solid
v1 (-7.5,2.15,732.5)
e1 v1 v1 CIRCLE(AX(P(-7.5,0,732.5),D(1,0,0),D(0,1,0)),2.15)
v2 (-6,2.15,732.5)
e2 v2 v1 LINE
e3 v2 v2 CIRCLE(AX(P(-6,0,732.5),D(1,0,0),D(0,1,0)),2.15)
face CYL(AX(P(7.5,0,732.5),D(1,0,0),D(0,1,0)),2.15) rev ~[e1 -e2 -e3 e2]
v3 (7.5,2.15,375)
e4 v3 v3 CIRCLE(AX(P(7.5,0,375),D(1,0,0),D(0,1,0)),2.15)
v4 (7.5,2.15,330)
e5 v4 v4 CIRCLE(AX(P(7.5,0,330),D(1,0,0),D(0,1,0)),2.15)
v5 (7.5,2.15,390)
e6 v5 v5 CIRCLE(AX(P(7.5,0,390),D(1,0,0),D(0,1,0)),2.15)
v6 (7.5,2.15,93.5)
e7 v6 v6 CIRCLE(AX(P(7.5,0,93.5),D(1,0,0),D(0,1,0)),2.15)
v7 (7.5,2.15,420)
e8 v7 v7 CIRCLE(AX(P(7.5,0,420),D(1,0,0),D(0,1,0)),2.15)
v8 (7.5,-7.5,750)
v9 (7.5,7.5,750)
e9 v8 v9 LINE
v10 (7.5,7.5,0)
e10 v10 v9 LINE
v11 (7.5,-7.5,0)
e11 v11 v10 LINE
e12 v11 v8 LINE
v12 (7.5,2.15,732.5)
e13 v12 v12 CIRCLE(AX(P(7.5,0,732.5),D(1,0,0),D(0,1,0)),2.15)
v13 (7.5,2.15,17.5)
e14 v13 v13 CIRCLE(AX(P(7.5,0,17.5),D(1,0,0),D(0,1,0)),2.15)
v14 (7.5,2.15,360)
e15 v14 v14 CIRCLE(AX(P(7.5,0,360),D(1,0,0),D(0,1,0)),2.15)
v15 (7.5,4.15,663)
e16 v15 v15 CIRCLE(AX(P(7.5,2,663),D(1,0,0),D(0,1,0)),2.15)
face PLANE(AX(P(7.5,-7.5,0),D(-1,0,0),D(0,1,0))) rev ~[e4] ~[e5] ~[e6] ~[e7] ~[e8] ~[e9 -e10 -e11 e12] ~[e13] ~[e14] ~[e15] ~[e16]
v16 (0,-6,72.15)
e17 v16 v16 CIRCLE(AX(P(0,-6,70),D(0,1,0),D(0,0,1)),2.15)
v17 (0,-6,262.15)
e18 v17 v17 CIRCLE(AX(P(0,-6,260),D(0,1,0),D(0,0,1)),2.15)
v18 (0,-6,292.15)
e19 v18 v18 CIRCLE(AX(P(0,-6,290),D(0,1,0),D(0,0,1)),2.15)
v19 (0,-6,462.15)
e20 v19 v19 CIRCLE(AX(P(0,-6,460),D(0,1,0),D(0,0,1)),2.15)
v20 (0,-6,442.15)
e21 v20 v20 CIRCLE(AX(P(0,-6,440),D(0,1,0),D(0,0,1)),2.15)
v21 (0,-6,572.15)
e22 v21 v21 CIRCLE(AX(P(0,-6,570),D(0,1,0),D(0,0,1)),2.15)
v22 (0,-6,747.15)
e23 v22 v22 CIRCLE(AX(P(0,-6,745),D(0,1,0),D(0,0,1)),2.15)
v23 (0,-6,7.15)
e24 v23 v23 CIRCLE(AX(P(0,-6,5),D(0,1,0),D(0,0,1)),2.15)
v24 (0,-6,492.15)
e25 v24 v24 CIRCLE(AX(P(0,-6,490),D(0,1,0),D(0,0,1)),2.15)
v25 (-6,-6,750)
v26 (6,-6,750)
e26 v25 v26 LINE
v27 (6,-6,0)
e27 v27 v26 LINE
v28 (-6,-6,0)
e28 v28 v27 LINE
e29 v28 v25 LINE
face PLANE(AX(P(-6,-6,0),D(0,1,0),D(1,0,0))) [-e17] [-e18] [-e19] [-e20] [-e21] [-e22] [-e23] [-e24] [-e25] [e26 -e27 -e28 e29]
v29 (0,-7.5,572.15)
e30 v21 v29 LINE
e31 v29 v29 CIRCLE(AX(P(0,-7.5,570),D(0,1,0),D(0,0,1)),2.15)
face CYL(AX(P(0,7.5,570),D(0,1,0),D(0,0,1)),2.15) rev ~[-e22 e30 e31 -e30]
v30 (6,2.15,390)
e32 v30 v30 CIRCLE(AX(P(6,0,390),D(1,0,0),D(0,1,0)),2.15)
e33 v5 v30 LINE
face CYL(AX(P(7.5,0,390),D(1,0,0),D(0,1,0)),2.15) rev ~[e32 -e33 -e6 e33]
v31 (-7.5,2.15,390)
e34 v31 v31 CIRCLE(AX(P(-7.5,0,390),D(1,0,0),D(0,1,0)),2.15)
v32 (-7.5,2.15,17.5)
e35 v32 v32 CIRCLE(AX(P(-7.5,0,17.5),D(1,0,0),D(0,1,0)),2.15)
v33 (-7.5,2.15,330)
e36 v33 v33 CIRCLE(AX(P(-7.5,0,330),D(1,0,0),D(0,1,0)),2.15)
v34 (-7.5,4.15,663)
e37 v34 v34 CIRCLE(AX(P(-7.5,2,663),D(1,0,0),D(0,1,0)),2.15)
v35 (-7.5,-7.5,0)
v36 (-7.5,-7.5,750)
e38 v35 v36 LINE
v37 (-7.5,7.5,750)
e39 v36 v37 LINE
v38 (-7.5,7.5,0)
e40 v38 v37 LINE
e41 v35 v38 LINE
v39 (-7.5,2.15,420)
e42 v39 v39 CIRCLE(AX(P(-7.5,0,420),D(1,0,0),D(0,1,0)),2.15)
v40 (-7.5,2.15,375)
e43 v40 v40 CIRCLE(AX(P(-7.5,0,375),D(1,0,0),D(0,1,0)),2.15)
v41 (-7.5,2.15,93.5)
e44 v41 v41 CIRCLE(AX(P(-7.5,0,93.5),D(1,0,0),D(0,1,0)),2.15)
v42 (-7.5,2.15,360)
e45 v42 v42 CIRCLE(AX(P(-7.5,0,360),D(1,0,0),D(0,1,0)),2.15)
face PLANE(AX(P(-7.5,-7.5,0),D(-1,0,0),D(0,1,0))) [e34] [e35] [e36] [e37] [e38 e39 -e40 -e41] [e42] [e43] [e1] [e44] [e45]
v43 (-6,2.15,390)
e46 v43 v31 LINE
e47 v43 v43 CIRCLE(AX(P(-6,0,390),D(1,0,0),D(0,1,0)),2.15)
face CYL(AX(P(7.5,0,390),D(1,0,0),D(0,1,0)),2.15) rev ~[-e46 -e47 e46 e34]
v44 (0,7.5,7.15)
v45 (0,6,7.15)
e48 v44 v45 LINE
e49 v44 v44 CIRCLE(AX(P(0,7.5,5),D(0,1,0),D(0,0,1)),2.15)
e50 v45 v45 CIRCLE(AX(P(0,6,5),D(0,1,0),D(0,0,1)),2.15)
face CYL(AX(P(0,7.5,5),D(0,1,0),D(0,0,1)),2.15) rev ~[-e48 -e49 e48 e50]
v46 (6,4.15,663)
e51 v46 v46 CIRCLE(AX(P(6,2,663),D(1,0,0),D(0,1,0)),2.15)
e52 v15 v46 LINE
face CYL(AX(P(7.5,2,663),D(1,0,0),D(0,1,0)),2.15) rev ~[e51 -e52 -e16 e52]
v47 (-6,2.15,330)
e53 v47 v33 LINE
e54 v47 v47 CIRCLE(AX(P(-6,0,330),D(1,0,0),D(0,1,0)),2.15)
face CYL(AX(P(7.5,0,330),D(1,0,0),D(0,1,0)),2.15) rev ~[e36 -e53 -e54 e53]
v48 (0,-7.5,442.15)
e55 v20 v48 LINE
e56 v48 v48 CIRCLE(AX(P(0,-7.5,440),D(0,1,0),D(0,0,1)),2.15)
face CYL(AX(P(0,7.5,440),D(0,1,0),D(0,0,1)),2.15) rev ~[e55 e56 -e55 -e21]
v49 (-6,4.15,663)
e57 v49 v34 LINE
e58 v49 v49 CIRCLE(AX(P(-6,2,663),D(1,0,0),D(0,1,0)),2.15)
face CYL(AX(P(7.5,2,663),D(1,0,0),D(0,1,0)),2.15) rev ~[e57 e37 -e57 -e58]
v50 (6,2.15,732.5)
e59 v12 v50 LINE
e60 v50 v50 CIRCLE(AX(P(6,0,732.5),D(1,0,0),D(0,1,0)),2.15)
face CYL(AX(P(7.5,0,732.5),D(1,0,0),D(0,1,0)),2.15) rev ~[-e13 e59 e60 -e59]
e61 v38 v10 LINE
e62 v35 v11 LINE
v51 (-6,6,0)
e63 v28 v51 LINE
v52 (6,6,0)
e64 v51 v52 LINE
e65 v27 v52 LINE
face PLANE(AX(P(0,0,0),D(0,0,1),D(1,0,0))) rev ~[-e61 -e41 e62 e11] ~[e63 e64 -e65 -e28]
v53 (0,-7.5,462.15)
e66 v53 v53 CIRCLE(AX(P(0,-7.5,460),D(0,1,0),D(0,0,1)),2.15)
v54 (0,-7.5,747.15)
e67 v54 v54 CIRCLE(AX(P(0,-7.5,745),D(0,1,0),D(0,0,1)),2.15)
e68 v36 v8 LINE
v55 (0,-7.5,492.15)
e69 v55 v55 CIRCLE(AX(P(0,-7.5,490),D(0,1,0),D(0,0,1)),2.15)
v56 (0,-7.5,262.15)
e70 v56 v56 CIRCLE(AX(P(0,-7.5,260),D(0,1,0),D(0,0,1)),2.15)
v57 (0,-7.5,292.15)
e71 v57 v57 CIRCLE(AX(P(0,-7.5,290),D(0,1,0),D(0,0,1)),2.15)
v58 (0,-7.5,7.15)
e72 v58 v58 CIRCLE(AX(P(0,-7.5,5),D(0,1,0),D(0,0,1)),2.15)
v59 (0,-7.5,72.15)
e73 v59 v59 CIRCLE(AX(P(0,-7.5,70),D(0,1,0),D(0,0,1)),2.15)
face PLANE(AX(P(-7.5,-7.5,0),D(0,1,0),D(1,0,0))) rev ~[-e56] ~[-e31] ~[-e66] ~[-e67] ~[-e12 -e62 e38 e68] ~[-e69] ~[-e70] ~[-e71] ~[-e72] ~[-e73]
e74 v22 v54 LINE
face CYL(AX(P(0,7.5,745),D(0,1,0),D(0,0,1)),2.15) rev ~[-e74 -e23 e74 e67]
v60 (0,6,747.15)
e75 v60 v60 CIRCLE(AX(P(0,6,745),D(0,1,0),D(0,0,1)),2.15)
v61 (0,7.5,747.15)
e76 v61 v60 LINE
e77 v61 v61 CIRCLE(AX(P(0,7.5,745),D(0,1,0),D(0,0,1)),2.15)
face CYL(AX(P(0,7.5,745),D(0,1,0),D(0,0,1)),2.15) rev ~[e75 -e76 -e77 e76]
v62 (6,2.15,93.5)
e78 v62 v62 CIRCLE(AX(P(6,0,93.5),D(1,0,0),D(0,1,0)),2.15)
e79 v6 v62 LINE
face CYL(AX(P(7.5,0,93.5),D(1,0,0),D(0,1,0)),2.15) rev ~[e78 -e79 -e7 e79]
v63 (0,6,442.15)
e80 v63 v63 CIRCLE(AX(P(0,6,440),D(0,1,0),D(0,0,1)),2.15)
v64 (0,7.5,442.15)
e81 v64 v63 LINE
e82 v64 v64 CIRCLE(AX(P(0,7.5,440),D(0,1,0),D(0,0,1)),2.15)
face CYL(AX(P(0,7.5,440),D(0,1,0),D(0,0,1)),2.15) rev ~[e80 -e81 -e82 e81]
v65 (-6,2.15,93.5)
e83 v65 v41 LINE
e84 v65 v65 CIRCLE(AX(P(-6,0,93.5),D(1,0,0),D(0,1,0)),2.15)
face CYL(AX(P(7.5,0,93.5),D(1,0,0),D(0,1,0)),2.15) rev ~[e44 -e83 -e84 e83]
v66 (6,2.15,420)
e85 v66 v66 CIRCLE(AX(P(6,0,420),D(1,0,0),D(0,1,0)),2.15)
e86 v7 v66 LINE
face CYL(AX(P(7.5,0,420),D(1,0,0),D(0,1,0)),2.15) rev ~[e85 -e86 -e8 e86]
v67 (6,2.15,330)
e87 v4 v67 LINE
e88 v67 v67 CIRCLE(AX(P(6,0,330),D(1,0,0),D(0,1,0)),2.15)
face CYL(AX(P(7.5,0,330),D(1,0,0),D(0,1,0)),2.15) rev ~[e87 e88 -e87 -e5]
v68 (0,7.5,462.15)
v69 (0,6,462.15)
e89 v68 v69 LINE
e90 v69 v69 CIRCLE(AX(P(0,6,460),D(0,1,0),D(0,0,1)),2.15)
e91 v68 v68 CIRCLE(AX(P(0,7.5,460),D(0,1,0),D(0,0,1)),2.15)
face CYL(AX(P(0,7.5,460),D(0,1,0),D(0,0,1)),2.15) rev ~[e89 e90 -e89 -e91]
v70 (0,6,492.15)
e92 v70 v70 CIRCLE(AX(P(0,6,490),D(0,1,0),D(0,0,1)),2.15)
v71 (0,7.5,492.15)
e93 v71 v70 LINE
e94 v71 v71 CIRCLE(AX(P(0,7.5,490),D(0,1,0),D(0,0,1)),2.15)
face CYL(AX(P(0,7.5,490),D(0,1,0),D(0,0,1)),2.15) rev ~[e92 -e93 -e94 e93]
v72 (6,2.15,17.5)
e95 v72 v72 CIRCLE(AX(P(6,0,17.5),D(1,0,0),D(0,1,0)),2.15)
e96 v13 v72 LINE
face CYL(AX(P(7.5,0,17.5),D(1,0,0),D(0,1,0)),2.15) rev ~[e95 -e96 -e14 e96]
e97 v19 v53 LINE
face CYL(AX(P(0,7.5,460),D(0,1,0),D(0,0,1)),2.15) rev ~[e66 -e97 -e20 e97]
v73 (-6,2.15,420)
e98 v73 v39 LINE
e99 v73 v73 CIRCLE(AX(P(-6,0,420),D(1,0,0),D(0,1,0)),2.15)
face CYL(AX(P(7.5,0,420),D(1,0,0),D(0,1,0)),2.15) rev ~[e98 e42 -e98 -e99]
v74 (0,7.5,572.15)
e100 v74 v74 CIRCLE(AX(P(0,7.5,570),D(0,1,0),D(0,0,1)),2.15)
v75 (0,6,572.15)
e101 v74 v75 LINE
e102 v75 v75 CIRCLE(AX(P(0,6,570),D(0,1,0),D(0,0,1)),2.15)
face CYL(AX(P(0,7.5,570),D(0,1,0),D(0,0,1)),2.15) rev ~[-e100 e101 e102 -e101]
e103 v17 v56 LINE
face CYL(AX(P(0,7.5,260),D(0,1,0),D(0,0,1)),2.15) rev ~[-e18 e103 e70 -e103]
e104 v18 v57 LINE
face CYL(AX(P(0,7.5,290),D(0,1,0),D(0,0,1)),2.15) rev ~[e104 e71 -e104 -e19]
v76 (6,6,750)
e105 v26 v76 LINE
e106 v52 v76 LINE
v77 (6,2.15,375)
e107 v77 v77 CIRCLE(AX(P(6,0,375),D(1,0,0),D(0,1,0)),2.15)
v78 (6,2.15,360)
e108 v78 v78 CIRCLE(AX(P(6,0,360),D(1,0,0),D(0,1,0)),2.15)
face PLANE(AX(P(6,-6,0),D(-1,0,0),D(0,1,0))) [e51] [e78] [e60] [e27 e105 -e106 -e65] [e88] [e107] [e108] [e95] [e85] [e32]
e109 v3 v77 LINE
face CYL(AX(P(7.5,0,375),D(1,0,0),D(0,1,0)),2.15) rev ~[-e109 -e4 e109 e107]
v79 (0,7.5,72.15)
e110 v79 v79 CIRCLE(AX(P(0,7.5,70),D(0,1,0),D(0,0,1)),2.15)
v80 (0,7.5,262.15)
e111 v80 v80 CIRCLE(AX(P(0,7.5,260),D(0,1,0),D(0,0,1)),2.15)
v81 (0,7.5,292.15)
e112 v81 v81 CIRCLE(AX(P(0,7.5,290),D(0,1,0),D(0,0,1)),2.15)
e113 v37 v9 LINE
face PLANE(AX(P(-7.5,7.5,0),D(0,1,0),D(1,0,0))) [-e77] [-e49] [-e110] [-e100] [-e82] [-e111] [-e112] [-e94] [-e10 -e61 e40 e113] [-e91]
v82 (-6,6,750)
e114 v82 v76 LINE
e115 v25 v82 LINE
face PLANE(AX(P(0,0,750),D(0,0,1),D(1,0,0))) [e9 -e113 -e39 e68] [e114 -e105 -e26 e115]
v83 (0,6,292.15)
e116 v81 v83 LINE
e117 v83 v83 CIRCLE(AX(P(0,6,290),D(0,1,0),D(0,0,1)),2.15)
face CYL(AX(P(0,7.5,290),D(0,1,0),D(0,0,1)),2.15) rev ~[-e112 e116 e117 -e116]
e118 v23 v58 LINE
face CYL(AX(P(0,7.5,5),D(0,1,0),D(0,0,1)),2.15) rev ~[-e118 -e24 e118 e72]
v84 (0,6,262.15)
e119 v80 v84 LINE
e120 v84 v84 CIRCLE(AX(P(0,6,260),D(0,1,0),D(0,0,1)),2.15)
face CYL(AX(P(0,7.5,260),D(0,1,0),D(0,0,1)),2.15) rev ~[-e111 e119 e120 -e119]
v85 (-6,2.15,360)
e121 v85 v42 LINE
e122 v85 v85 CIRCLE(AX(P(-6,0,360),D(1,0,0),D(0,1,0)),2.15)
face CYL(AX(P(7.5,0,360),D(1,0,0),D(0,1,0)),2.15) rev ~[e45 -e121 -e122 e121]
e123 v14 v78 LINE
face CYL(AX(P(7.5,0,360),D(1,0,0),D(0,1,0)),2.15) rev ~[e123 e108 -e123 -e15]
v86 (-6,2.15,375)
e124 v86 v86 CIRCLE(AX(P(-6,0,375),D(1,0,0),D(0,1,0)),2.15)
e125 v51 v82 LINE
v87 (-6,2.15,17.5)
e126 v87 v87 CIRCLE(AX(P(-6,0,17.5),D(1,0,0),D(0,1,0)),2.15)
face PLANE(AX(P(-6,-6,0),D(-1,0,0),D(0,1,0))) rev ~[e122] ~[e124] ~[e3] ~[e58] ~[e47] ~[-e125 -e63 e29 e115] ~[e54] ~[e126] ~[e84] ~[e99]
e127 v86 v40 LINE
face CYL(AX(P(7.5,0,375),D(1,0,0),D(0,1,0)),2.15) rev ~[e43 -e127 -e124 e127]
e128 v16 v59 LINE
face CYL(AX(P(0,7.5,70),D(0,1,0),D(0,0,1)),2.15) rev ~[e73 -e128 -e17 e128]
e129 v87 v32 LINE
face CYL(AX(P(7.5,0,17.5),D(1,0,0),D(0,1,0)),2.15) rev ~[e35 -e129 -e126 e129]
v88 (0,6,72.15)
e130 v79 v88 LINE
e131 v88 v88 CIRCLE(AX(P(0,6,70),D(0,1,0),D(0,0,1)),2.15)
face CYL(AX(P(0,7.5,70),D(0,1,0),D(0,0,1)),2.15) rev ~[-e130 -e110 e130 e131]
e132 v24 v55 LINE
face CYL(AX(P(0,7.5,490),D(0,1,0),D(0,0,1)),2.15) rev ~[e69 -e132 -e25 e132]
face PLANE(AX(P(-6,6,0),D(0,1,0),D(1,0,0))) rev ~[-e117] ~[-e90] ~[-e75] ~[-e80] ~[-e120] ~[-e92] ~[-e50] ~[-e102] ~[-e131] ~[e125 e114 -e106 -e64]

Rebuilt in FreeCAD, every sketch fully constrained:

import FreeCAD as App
import Part
import Sketcher
from FreeCAD import Vector


def add_polygon(sketch, points):
    """Adds a closed chain of lines whose ends are joined by coincident constraints."""
    first, n = sketch.GeometryCount, len(points)
    for a, b in zip(points, points[1:] + points[:1]):
        sketch.addGeometry(Part.LineSegment(App.Vector(*a, 0), App.Vector(*b, 0)), False)
    for i in range(n):
        sketch.addConstraint(Sketcher.Constraint("Coincident", first + i, 2, first + (i + 1) % n, 1))

doc = App.newDocument("Part")
body = doc.addObject("PartDesign::Body", "Body")

# Sketch on XY plane
sketch1 = doc.addObject("Sketcher::SketchObject", "Sketch")
body.addObject(sketch1)
sketch1.AttachmentSupport = (doc.XY_Plane, [""])
sketch1.MapMode = "FlatFace"
add_polygon(sketch1, [(-8, 8), (-8, -8), (8, -8), (8, 8)])  # lines 0-3
add_polygon(sketch1, [(6, -6), (-6, -6), (-6, 6), (6, 6)])  # lines 4-7
sketch1.addConstraint([
    Sketcher.Constraint("Vertical", 0),
    Sketcher.Constraint("Horizontal", 1),
    Sketcher.Constraint("Vertical", 2),
    Sketcher.Constraint("Horizontal", 3),
    Sketcher.Constraint("Horizontal", 4),
    Sketcher.Constraint("Vertical", 5),
    Sketcher.Constraint("Horizontal", 6),
    Sketcher.Constraint("Vertical", 7),
    Sketcher.Constraint("Symmetric", 0, 2, 2, 2, -1, 1),
    Sketcher.Constraint("Symmetric", 4, 2, 6, 2, -1, 1),
    Sketcher.Constraint("Equal", 3, 0),
    Sketcher.Constraint("Equal", 6, 5),
    Sketcher.Constraint("DistanceX", 1, 1, 1, 2, 15.0),
    Sketcher.Constraint("DistanceX", 4, 2, 4, 1, 12.0),
])
pad1 = doc.addObject("PartDesign::Pad", "Pad")
body.addObject(pad1)
pad1.Profile = sketch1
pad1.Length = 750

# Sketch on XZ plane
sketch2 = doc.addObject("Sketcher::SketchObject", "Sketch001")
body.addObject(sketch2)
sketch2.AttachmentSupport = (doc.XZ_Plane, [""])
sketch2.MapMode = "FlatFace"
sketch2.AttachmentOffset = App.Placement(Vector(0, 0, -7.5), App.Rotation())
sketch2.addGeometry([
    Part.Circle(Vector(0, 745, 0), Vector(0, 0, 1), 2.1),  # 0
    Part.Circle(Vector(0, 5, 0), Vector(0, 0, 1), 2.1),  # 1
    Part.Circle(Vector(0, 490, 0), Vector(0, 0, 1), 2.1),  # 2
    Part.Circle(Vector(0, 460, 0), Vector(0, 0, 1), 2.1),  # 3
    Part.Circle(Vector(0, 570, 0), Vector(0, 0, 1), 2.1),  # 4
    Part.Circle(Vector(0, 290, 0), Vector(0, 0, 1), 2.1),  # 5
    Part.Circle(Vector(0, 260, 0), Vector(0, 0, 1), 2.1),  # 6
    Part.Circle(Vector(0, 70, 0), Vector(0, 0, 1), 2.1),  # 7
    Part.Circle(Vector(0, 440, 0), Vector(0, 0, 1), 2.1),  # 8
], False)
sketch2.addConstraint([
    Sketcher.Constraint("Equal", 0, 1),
    Sketcher.Constraint("Equal", 1, 2),
    Sketcher.Constraint("Equal", 2, 3),
    Sketcher.Constraint("Equal", 3, 4),
    Sketcher.Constraint("Equal", 4, 5),
    Sketcher.Constraint("Equal", 5, 6),
    Sketcher.Constraint("Equal", 6, 7),
    Sketcher.Constraint("Equal", 7, 8),
    Sketcher.Constraint("PointOnObject", 0, 3, -2),
    Sketcher.Constraint("PointOnObject", 1, 3, -2),
    Sketcher.Constraint("PointOnObject", 2, 3, -2),
    Sketcher.Constraint("PointOnObject", 3, 3, -2),
    Sketcher.Constraint("PointOnObject", 4, 3, -2),
    Sketcher.Constraint("PointOnObject", 5, 3, -2),
    Sketcher.Constraint("PointOnObject", 6, 3, -2),
    Sketcher.Constraint("PointOnObject", 7, 3, -2),
    Sketcher.Constraint("PointOnObject", 8, 3, -2),
    Sketcher.Constraint("Diameter", 0, 4.3),
    Sketcher.Constraint("DistanceY", -1, 1, 0, 3, 745.0),
    Sketcher.Constraint("DistanceY", -1, 1, 1, 3, 5.0),
    Sketcher.Constraint("DistanceY", -1, 1, 2, 3, 490.0),
    Sketcher.Constraint("DistanceY", -1, 1, 3, 3, 460.0),
    Sketcher.Constraint("DistanceY", -1, 1, 4, 3, 570.0),
    Sketcher.Constraint("DistanceY", -1, 1, 5, 3, 290.0),
    Sketcher.Constraint("DistanceY", -1, 1, 6, 3, 260.0),
    Sketcher.Constraint("DistanceY", -1, 1, 7, 3, 70.0),
    Sketcher.Constraint("DistanceY", -1, 1, 8, 3, 440.0),
])
pocket1 = doc.addObject("PartDesign::Pocket", "Pocket")
body.addObject(pocket1)
pocket1.Profile = sketch2
pocket1.Type = "ThroughAll"
pocket1.Reversed = True

# Sketch on YZ plane
sketch3 = doc.addObject("Sketcher::SketchObject", "Sketch002")
body.addObject(sketch3)
sketch3.AttachmentSupport = (doc.YZ_Plane, [""])
sketch3.MapMode = "FlatFace"
sketch3.AttachmentOffset = App.Placement(Vector(0, 0, 7.5), App.Rotation())
sketch3.addGeometry([
    Part.Circle(Vector(0, 360, 0), Vector(0, 0, 1), 2.1),  # 0
    Part.Circle(Vector(0, 390, 0), Vector(0, 0, 1), 2.1),  # 1
    Part.Circle(Vector(0, 375, 0), Vector(0, 0, 1), 2.1),  # 2
    Part.Circle(Vector(0, 732.5, 0), Vector(0, 0, 1), 2.1),  # 3
    Part.Circle(Vector(0, 17.5, 0), Vector(0, 0, 1), 2.1),  # 4
    Part.Circle(Vector(0, 420, 0), Vector(0, 0, 1), 2.1),  # 5
    Part.Circle(Vector(0, 330, 0), Vector(0, 0, 1), 2.1),  # 6
    Part.Circle(Vector(2, 663, 0), Vector(0, 0, 1), 2.1),  # 7
    Part.Circle(Vector(0, 93.5, 0), Vector(0, 0, 1), 2.1),  # 8
], False)
sketch3.addConstraint([
    Sketcher.Constraint("Equal", 0, 1),
    Sketcher.Constraint("Equal", 1, 2),
    Sketcher.Constraint("Equal", 2, 3),
    Sketcher.Constraint("Equal", 3, 4),
    Sketcher.Constraint("Equal", 4, 5),
    Sketcher.Constraint("Equal", 5, 6),
    Sketcher.Constraint("Equal", 6, 7),
    Sketcher.Constraint("Equal", 7, 8),
    Sketcher.Constraint("PointOnObject", 0, 3, -2),
    Sketcher.Constraint("PointOnObject", 1, 3, -2),
    Sketcher.Constraint("PointOnObject", 2, 3, -2),
    Sketcher.Constraint("PointOnObject", 3, 3, -2),
    Sketcher.Constraint("PointOnObject", 4, 3, -2),
    Sketcher.Constraint("PointOnObject", 5, 3, -2),
    Sketcher.Constraint("PointOnObject", 6, 3, -2),
    Sketcher.Constraint("PointOnObject", 8, 3, -2),
    Sketcher.Constraint("Diameter", 0, 4.3),
    Sketcher.Constraint("DistanceY", -1, 1, 0, 3, 360.0),
    Sketcher.Constraint("DistanceY", -1, 1, 1, 3, 390.0),
    Sketcher.Constraint("DistanceY", -1, 1, 2, 3, 375.0),
    Sketcher.Constraint("DistanceY", -1, 1, 5, 3, 420.0),
    Sketcher.Constraint("DistanceY", -1, 1, 6, 3, 330.0),
    Sketcher.Constraint("DistanceX", -1, 1, 7, 3, 2.0),
    Sketcher.Constraint("DistanceY", -1, 1, 7, 3, 663.0),
    Sketcher.Constraint("DistanceY", 4, 3, 3, 3, 715.0),
    Sketcher.Constraint("DistanceY", 4, 3, 8, 3, 76.0),
    Sketcher.Constraint("DistanceY", -1, 1, 3, 3, 732.5),
])
pocket2 = doc.addObject("PartDesign::Pocket", "Pocket001")
body.addObject(pocket2)
pocket2.Profile = sketch3
pocket2.Type = "ThroughAll"

doc.recompute()
